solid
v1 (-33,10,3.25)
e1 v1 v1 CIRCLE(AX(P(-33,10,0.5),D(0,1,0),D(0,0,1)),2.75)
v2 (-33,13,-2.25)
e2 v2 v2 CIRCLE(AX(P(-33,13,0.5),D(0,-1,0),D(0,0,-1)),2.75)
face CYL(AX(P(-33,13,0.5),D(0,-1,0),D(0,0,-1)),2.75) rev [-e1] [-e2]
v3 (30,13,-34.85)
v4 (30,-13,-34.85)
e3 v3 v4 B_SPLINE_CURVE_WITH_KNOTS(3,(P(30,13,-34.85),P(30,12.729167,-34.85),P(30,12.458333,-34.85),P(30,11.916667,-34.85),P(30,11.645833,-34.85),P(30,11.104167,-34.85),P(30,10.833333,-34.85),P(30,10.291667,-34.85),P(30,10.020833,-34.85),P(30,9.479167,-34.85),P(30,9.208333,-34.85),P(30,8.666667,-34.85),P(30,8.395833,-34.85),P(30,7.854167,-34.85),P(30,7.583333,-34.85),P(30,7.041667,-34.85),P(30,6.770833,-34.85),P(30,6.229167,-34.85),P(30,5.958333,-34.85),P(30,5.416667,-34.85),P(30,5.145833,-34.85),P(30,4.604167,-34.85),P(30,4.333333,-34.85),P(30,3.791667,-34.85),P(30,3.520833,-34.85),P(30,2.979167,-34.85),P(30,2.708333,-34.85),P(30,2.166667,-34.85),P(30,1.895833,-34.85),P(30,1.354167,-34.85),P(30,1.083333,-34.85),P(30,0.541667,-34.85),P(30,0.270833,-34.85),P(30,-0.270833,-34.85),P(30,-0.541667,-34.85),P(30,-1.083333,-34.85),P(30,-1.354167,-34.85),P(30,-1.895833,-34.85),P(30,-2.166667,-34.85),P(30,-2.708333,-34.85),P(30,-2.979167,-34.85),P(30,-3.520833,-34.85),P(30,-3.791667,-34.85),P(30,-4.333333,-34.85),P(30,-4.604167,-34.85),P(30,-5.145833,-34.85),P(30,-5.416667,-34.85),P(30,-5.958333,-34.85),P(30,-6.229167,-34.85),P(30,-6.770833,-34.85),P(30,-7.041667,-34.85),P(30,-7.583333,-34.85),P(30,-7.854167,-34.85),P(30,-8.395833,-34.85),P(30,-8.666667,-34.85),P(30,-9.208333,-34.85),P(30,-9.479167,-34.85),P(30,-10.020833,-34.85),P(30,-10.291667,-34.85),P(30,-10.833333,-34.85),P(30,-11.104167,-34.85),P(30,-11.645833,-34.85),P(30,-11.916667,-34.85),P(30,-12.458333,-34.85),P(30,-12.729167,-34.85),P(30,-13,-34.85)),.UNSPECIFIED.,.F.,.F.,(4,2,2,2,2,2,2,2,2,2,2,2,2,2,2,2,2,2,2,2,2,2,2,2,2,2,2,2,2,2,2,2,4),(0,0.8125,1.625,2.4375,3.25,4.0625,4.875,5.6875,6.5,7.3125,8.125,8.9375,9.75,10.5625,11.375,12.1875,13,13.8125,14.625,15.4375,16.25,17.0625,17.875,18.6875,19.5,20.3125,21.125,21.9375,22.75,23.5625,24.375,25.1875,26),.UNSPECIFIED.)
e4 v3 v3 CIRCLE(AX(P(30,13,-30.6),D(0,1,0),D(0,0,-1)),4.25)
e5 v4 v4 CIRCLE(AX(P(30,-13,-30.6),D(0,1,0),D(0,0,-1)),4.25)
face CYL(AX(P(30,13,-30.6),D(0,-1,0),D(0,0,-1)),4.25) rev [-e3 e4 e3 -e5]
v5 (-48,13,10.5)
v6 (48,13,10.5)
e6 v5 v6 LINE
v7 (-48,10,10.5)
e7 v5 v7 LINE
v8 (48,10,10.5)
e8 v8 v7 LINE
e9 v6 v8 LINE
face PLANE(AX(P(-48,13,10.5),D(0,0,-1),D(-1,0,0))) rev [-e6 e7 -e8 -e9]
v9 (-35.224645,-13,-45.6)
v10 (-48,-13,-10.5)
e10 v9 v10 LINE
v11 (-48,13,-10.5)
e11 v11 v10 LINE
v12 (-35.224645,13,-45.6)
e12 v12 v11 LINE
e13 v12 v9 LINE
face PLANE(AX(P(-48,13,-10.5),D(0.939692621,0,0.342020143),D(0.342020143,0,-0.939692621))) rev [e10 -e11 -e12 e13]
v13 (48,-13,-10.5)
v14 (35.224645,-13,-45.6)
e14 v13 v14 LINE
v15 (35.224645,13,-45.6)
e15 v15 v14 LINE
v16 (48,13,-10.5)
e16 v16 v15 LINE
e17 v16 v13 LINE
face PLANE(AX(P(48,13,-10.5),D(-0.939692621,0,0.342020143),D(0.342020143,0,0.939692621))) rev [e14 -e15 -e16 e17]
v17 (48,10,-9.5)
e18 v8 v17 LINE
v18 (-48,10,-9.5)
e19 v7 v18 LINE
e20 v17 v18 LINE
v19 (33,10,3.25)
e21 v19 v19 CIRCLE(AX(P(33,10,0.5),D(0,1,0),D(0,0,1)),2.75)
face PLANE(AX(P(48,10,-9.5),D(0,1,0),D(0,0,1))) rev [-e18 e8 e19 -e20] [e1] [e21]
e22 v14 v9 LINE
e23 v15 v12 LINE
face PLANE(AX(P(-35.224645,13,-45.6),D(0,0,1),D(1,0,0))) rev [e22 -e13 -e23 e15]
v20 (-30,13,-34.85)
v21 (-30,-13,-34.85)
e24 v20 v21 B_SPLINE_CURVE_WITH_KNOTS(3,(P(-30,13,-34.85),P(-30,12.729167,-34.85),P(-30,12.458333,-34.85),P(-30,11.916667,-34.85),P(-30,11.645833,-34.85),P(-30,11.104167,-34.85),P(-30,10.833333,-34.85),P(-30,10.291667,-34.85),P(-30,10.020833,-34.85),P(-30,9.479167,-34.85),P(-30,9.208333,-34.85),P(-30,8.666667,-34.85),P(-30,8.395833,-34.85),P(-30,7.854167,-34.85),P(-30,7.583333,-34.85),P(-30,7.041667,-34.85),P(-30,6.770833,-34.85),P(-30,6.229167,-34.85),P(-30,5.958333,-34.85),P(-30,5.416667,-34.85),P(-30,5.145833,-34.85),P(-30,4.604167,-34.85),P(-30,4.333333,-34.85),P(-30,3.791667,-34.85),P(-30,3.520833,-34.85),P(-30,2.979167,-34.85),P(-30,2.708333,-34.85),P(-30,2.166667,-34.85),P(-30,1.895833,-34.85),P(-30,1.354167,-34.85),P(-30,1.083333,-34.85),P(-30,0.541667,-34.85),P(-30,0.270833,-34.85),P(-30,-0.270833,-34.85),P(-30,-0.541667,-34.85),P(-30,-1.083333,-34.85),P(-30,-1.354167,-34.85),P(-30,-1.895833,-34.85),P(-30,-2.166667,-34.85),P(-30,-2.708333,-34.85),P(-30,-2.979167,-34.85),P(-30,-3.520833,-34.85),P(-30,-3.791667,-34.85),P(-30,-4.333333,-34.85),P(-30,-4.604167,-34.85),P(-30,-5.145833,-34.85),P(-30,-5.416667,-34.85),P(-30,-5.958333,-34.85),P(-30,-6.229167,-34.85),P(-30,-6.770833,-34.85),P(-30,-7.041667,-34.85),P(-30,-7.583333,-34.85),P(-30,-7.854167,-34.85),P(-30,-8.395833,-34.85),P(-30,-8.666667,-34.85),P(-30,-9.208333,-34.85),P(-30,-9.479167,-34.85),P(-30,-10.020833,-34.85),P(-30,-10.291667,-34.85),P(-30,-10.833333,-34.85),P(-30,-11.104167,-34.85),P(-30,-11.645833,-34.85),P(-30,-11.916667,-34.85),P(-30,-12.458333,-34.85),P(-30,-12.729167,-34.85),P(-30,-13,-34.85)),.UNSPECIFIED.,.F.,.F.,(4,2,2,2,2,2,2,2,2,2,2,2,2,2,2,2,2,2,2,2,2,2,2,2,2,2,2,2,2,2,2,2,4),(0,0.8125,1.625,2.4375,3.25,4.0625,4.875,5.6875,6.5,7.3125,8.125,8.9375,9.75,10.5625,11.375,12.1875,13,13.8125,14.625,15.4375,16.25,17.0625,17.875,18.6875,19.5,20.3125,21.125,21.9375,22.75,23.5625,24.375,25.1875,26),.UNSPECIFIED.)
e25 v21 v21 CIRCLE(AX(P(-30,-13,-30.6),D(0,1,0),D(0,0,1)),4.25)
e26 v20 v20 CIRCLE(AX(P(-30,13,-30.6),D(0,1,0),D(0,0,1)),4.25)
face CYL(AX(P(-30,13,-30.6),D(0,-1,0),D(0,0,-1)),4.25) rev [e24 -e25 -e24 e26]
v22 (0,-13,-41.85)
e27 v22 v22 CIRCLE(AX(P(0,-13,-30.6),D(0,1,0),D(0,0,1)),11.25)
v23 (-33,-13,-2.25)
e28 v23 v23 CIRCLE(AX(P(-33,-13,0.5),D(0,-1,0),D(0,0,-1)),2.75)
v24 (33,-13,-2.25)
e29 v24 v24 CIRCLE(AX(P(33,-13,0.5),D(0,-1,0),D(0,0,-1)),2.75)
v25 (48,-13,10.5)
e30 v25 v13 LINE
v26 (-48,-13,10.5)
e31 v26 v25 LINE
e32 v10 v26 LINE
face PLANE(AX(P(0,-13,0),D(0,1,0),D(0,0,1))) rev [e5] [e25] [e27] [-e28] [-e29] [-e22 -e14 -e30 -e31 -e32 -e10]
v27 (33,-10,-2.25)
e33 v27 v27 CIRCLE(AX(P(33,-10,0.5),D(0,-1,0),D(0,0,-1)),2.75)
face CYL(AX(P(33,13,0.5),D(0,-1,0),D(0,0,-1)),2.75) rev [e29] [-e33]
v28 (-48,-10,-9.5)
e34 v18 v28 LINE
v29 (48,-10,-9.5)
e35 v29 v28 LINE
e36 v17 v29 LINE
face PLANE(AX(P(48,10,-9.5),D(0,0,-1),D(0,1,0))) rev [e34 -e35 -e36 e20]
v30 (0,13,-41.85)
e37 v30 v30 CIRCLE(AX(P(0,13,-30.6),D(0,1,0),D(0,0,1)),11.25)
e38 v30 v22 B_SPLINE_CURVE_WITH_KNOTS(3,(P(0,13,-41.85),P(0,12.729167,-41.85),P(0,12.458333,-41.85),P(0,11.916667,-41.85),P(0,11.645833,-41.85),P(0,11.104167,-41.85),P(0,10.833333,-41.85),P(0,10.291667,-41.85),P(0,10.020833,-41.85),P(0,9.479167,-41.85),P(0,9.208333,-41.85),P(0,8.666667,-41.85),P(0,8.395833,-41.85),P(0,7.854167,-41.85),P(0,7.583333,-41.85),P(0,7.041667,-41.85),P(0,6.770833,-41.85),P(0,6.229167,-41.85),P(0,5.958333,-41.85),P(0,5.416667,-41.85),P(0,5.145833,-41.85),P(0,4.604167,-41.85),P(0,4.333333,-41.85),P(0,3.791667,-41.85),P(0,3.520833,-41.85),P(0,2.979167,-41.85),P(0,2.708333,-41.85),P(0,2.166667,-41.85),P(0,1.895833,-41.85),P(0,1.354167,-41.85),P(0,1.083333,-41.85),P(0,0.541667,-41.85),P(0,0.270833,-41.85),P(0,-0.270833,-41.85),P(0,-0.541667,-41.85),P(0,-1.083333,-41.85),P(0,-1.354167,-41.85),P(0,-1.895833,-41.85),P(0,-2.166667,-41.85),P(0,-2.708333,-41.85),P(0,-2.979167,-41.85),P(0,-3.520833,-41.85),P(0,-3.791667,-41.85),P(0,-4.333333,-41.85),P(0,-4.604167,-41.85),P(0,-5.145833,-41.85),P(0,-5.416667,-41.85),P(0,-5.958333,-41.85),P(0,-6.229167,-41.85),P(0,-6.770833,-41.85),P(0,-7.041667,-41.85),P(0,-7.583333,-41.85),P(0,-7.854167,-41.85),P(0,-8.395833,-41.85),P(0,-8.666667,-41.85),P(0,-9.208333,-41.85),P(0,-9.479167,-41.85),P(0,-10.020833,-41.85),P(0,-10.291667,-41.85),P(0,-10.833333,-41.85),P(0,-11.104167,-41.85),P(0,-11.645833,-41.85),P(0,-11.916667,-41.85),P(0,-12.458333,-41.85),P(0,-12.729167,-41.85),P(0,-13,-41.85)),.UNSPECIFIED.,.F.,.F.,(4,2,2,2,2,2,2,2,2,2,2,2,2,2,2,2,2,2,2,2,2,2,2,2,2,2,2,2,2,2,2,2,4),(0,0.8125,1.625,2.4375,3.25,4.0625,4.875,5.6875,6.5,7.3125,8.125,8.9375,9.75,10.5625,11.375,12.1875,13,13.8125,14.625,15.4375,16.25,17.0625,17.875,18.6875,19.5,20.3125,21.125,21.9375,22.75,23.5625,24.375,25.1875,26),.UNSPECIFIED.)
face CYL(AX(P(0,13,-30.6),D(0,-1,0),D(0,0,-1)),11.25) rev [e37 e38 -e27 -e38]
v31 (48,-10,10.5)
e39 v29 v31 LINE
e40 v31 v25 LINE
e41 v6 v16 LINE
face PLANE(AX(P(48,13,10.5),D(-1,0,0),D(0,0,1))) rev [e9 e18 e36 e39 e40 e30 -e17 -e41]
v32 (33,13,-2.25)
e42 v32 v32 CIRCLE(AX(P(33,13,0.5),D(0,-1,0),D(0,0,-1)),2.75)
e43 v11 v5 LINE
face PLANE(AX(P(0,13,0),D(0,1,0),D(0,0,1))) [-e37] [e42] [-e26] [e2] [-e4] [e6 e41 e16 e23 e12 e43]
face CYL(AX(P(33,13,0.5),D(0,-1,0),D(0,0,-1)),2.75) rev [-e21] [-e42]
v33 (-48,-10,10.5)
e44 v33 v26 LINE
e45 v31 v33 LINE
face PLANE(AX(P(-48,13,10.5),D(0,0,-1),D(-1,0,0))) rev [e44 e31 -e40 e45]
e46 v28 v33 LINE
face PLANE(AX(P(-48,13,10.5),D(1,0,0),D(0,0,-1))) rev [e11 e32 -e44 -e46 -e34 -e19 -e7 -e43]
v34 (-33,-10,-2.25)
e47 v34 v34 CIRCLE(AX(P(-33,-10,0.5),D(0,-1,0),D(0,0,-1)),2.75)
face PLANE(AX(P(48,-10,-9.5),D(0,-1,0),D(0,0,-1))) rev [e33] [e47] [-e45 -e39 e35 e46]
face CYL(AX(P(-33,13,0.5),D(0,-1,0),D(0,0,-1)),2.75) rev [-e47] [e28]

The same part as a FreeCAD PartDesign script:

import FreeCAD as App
import Part
import Sketcher

V = App.Vector
Q = App.Units.Quantity

doc = App.newDocument("Part")
body = doc.addObject("PartDesign::Body", "Body")

# Sketch on XZ plane
sketch1 = doc.addObject("Sketcher::SketchObject", "Sketch")
body.addObject(sketch1)
sketch1.AttachmentSupport = (doc.XZ_Plane, [""])
sketch1.MapMode = "FlatFace"
sketch1.addGeometry(Part.LineSegment(V(-48, 10.5, 0), V(48, 10.5, 0)), False)
sketch1.addGeometry(Part.LineSegment(V(48, 10.5, 0), V(48, -10.5, 0)), False)
sketch1.addGeometry(Part.LineSegment(V(48, -10.5, 0), V(35.2, -45.6, 0)), False)
sketch1.addGeometry(Part.LineSegment(V(35.2, -45.6, 0), V(-35.2, -45.6, 0)), False)
sketch1.addGeometry(Part.LineSegment(V(-35.2, -45.6, 0), V(-48, -10.5, 0)), False)
sketch1.addGeometry(Part.LineSegment(V(-48, -10.5, 0), V(-48, 10.5, 0)), False)
sketch1.addGeometry(Part.Circle(V(-30, -30.6, 0), V(0, 0, 1), 4.2), False)
sketch1.addGeometry(Part.Circle(V(0, -30.6, 0), V(0, 0, 1), 11.2), False)
sketch1.addGeometry(Part.Circle(V(30, -30.6, 0), V(0, 0, 1), 4.2), False)
sketch1.addConstraint(Sketcher.Constraint("Coincident", 0, 2, 1, 1))
sketch1.addConstraint(Sketcher.Constraint("Coincident", 1, 2, 2, 1))
sketch1.addConstraint(Sketcher.Constraint("Coincident", 2, 2, 3, 1))
sketch1.addConstraint(Sketcher.Constraint("Coincident", 3, 2, 4, 1))
sketch1.addConstraint(Sketcher.Constraint("Coincident", 4, 2, 5, 1))
sketch1.addConstraint(Sketcher.Constraint("Coincident", 5, 2, 0, 1))
sketch1.addConstraint(Sketcher.Constraint("Horizontal", 0))
sketch1.addConstraint(Sketcher.Constraint("Vertical", 1))
sketch1.addConstraint(Sketcher.Constraint("Horizontal", 3))
sketch1.addConstraint(Sketcher.Constraint("Vertical", 5))
sketch1.addConstraint(Sketcher.Constraint("Equal", 6, 8))
sketch1.addConstraint(Sketcher.Constraint("Symmetric", 0, 2, 4, 2, -1, 1))
sketch1.addConstraint(Sketcher.Constraint("Symmetric", 6, 3, 8, 3, -2))
sketch1.addConstraint(Sketcher.Constraint("PointOnObject", 7, 3, -2))
sketch1.addConstraint(Sketcher.Constraint("Horizontal", 6, 3, 7, 3))
sketch1.addConstraint(Sketcher.Constraint("Horizontal", 1, 2, 4, 2))
sketch1.addConstraint(Sketcher.Constraint("Equal", 2, 4))
sketch1.addConstraint(Sketcher.Constraint("Diameter", 6, Q("8.5 mm")))
sketch1.addConstraint(Sketcher.Constraint("Diameter", 7, Q("22.5 mm")))
sketch1.addConstraint(Sketcher.Constraint("DistanceX", 0, 1, 0, 2, Q("96 mm")))
sketch1.addConstraint(Sketcher.Constraint("DistanceY", 1, 2, 1, 1, Q("21 mm")))
sketch1.addConstraint(Sketcher.Constraint("Angle", 2, Q("-110 deg")))
sketch1.addConstraint(Sketcher.Constraint("DistanceX", 6, 3, -1, 1, Q("30 mm")))
sketch1.addConstraint(Sketcher.Constraint("DistanceY", 2, 2, 8, 3, Q("15 mm")))
sketch1.addConstraint(Sketcher.Constraint("DistanceY", 6, 3, -1, 1, Q("30.6 mm")))
pad1 = doc.addObject("PartDesign::Pad", "Pad")
body.addObject(pad1)
pad1.Profile = sketch1
pad1.Length = 26
pad1.Midplane = True

# Sketch on YZ plane
sketch2 = doc.addObject("Sketcher::SketchObject", "Sketch001")
body.addObject(sketch2)
sketch2.AttachmentSupport = (doc.YZ_Plane, [""])
sketch2.MapMode = "FlatFace"
sketch2.AttachmentOffset = App.Placement(V(0, 0, -48), App.Rotation())
sketch2.addGeometry(Part.LineSegment(V(10, -10, 0), V(-10, -10, 0)), False)
sketch2.addGeometry(Part.LineSegment(V(-10, -10, 0), V(-10, 10, 0)), False)
sketch2.addGeometry(Part.LineSegment(V(-10, 10, 0), V(10, 10, 0)), False)
sketch2.addGeometry(Part.LineSegment(V(10, 10, 0), V(10, -10, 0)), False)
sketch2.addConstraint(Sketcher.Constraint("Coincident", 0, 2, 1, 1))
sketch2.addConstraint(Sketcher.Constraint("Coincident", 1, 2, 2, 1))
sketch2.addConstraint(Sketcher.Constraint("Coincident", 2, 2, 3, 1))
sketch2.addConstraint(Sketcher.Constraint("Coincident", 3, 2, 0, 1))
sketch2.addConstraint(Sketcher.Constraint("Horizontal", 0))
sketch2.addConstraint(Sketcher.Constraint("Vertical", 1))
sketch2.addConstraint(Sketcher.Constraint("Horizontal", 2))
sketch2.addConstraint(Sketcher.Constraint("Vertical", 3))
sketch2.addConstraint(Sketcher.Constraint("Equal", 2, 1))
sketch2.addConstraint(Sketcher.Constraint("DistanceX", 0, 2, 0, 1, Q("20 mm")))
sketch2.addConstraint(Sketcher.Constraint("DistanceX", 0, 2, -1, 1, Q("10 mm")))
sketch2.addConstraint(Sketcher.Constraint("DistanceY", 0, 2, -1, 1, Q("9.5 mm")))
pocket1 = doc.addObject("PartDesign::Pocket", "Pocket")
body.addObject(pocket1)
pocket1.Profile = sketch2
pocket1.Type = "ThroughAll"
pocket1.Reversed = True

# Sketch on XZ plane
sketch3 = doc.addObject("Sketcher::SketchObject", "Sketch002")
body.addObject(sketch3)
sketch3.AttachmentSupport = (doc.XZ_Plane, [""])
sketch3.MapMode = "FlatFace"
sketch3.AttachmentOffset = App.Placement(V(0, 0, -10), App.Rotation())
sketch3.addGeometry(Part.Circle(V(-33, 0.5, 0), V(0, 0, 1), 2.8), False)
sketch3.addGeometry(Part.Circle(V(33, 0.5, 0), V(0, 0, 1), 2.8), False)
sketch3.addConstraint(Sketcher.Constraint("Equal", 0, 1))
sketch3.addConstraint(Sketcher.Constraint("Symmetric", 0, 3, 1, 3, -2))
sketch3.addConstraint(Sketcher.Constraint("Diameter", 0, Q("5.5 mm")))
sketch3.addConstraint(Sketcher.Constraint("DistanceX", 0, 3, -1, 1, Q("33 mm")))
sketch3.addConstraint(Sketcher.Constraint("DistanceY", -1, 1, 0, 3, Q("0.5 mm")))
pocket2 = doc.addObject("PartDesign::Pocket", "Pocket001")
body.addObject(pocket2)
pocket2.Profile = sketch3
pocket2.Type = "ThroughAll"
pocket2.Midplane = True

doc.recompute()
